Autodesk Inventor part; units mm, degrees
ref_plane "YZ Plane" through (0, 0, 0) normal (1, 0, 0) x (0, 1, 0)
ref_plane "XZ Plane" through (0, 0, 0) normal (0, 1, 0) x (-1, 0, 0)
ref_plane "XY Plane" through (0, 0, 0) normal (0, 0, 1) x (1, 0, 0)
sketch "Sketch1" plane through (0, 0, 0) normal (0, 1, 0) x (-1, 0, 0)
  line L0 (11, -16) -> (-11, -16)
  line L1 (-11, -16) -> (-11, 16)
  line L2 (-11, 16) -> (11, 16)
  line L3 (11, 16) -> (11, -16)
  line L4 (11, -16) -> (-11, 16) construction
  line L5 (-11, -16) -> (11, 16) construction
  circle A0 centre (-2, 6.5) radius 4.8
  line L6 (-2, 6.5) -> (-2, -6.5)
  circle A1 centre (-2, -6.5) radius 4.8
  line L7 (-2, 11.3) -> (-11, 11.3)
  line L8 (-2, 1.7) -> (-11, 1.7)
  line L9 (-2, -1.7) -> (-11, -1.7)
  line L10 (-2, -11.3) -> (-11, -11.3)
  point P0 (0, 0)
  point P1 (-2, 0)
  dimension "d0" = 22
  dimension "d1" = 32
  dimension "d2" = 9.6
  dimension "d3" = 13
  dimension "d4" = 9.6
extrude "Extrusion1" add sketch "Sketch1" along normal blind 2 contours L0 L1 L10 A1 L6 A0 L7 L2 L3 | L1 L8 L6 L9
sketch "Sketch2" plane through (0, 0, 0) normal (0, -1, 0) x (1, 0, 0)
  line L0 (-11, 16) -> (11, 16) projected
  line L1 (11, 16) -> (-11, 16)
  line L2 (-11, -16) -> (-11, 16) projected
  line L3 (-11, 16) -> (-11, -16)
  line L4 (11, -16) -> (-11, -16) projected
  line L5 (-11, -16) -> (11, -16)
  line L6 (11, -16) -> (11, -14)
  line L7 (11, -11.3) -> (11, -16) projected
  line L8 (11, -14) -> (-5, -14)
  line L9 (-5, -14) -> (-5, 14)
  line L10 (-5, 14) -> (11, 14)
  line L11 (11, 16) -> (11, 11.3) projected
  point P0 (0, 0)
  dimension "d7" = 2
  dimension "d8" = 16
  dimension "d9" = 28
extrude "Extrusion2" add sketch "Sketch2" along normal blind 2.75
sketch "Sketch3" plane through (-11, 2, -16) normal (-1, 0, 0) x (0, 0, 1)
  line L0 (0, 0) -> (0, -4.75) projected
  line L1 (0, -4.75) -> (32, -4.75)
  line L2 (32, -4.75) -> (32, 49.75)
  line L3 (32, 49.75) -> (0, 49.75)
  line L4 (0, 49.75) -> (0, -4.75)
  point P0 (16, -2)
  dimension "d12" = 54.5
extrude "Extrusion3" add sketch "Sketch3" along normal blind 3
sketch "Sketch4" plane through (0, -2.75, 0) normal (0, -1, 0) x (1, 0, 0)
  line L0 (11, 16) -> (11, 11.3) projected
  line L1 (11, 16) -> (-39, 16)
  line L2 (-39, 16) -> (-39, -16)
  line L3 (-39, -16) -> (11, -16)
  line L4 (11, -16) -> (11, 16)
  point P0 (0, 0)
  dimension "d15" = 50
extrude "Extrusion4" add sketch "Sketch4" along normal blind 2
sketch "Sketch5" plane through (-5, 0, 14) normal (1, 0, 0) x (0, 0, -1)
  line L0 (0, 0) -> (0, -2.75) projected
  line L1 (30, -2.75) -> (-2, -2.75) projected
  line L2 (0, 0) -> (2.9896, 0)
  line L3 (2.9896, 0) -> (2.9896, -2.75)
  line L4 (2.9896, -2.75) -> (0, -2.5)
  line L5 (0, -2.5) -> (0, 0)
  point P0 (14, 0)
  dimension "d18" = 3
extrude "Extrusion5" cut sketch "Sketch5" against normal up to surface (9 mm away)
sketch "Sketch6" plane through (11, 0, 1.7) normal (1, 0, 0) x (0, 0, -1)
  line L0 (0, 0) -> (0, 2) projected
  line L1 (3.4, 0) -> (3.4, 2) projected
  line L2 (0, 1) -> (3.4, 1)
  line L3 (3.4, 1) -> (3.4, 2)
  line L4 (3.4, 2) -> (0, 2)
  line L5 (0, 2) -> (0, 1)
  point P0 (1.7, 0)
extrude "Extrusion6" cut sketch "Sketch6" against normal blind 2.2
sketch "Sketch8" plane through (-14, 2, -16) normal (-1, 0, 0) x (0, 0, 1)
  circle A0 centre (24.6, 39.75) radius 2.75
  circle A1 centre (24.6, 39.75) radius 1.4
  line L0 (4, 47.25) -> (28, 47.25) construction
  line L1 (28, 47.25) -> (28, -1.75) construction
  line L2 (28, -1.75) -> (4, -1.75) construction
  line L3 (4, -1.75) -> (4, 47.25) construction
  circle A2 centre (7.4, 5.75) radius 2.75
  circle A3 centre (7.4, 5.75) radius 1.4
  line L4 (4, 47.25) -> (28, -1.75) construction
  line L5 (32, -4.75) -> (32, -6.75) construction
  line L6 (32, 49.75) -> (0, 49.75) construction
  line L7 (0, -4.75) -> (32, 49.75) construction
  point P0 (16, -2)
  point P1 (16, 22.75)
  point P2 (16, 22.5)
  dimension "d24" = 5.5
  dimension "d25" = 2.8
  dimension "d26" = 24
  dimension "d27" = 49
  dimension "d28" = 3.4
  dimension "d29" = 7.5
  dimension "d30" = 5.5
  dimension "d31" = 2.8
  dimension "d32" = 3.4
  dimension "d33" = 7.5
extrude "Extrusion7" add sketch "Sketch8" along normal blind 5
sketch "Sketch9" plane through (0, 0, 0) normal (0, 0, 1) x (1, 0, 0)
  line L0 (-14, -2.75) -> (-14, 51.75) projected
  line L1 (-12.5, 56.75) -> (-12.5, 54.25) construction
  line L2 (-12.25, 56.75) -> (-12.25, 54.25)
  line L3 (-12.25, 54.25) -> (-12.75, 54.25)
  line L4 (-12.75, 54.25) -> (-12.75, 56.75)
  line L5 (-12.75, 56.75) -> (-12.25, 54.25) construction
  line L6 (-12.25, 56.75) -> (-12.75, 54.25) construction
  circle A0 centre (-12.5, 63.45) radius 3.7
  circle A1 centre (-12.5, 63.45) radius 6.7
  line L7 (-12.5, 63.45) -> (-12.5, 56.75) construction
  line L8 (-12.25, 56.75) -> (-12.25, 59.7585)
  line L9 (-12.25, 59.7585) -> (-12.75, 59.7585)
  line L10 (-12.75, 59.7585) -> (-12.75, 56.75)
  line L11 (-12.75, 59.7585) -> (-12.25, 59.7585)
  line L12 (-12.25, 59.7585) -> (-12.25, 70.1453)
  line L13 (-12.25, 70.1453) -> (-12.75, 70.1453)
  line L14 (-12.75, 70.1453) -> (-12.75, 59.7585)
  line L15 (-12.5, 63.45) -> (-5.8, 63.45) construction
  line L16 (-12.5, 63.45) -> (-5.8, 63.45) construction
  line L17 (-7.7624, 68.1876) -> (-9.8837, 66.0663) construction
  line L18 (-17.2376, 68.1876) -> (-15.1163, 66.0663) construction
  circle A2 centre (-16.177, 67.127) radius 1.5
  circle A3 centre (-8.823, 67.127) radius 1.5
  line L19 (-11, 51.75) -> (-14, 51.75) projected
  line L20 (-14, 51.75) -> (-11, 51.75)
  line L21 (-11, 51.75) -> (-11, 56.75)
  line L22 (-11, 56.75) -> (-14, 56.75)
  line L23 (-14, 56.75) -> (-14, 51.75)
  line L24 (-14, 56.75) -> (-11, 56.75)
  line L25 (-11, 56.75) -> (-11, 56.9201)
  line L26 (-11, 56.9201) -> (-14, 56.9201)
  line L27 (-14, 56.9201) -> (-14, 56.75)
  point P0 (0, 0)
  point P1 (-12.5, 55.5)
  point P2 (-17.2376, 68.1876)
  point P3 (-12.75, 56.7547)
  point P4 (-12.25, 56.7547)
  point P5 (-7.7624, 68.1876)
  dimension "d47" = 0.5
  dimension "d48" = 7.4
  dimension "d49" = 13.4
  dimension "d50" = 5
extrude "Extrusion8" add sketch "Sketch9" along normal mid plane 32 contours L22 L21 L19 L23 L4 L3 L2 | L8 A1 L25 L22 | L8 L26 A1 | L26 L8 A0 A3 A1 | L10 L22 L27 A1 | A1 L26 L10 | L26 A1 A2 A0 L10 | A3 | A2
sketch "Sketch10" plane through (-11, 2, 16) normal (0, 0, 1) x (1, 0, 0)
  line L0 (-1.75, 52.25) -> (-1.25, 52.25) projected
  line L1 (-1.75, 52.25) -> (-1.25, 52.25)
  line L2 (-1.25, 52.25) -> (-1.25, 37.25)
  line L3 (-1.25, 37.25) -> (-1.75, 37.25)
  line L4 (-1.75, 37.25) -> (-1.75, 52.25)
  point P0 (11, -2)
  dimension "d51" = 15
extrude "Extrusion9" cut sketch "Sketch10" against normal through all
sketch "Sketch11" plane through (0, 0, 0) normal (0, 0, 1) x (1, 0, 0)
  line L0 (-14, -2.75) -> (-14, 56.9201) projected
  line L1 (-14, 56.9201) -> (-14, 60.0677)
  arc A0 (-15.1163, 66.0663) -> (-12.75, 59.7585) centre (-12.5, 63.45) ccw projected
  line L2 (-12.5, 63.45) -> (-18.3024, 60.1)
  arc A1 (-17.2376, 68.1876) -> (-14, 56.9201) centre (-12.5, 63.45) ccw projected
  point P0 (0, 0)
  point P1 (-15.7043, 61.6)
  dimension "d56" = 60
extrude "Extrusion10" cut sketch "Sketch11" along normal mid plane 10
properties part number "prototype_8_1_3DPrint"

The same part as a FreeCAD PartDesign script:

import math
import FreeCAD as App
import Part
import Sketcher

V = App.Vector
Q = App.Units.Quantity

doc = App.newDocument("Part")
body = doc.addObject("PartDesign::Body", "Body")

# Sketch on XZ plane
sketch1 = body.newObject("Sketcher::SketchObject", "Sketch")
sketch1.AttachmentSupport = (doc.getObject("XZ_Plane"), [""])
sketch1.MapMode = "FlatFace"
sketch1.addGeometry([
    Part.LineSegment(V(11, -16, 0), V(-11, -16, 0)),  # 0
    Part.LineSegment(V(-11, -16, 0), V(-11, 16, 0)),  # 1
    Part.LineSegment(V(-11, 16, 0), V(11, 16, 0)),  # 2
    Part.LineSegment(V(11, 16, 0), V(11, 11.3, 0)),  # 3
    Part.LineSegment(V(11, 11.3, 0), V(2, 11.3, 0)),  # 4
    Part.ArcOfCircle(Part.Circle(V(2, 6.5, 0), V(0, 0, 1), 4.8), math.radians(90), math.radians(270)),  # 5
    Part.LineSegment(V(2, 1.7, 0), V(11, 1.7, 0)),  # 6
    Part.LineSegment(V(11, 1.7, 0), V(11, -1.7, 0)),  # 7
    Part.LineSegment(V(11, -1.7, 0), V(2, -1.7, 0)),  # 8
    Part.ArcOfCircle(Part.Circle(V(2, -6.5, 0), V(0, 0, 1), 4.8), math.radians(90), math.radians(270)),  # 9
    Part.LineSegment(V(2, -11.3, 0), V(11, -11.3, 0)),  # 10
    Part.LineSegment(V(11, -11.3, 0), V(11, -16, 0)),  # 11
], False)
sketch1.addConstraint([
    Sketcher.Constraint("Coincident", 0, 2, 1, 1),
    Sketcher.Constraint("Coincident", 1, 2, 2, 1),
    Sketcher.Constraint("Coincident", 2, 2, 3, 1),
    Sketcher.Constraint("Coincident", 3, 2, 4, 1),
    Sketcher.Constraint("Tangent", 4, 2, 5, 1),
    Sketcher.Constraint("Tangent", 5, 2, 6, 1),
    Sketcher.Constraint("Coincident", 6, 2, 7, 1),
    Sketcher.Constraint("Coincident", 7, 2, 8, 1),
    Sketcher.Constraint("Tangent", 8, 2, 9, 1),
    Sketcher.Constraint("Tangent", 9, 2, 10, 1),
    Sketcher.Constraint("Coincident", 10, 2, 11, 1),
    Sketcher.Constraint("Coincident", 11, 2, 0, 1),
    Sketcher.Constraint("Horizontal", 0),
    Sketcher.Constraint("Vertical", 1),
    Sketcher.Constraint("Horizontal", 2),
    Sketcher.Constraint("Vertical", 3),
    Sketcher.Constraint("Horizontal", 4),
    Sketcher.Constraint("Horizontal", 6),
    Sketcher.Constraint("Vertical", 7),
    Sketcher.Constraint("Horizontal", 8),
    Sketcher.Constraint("Horizontal", 10),
    Sketcher.Constraint("Vertical", 11),
    Sketcher.Constraint("Equal", 5, 9),
    Sketcher.Constraint("Symmetric", 0, 2, 2, 2, -1, 1),
    Sketcher.Constraint("Symmetric", 5, 3, 9, 3, -1),
    Sketcher.Constraint("Vertical", 3, 2, 6, 2),
    Sketcher.Constraint("Vertical", 7, 2, 10, 2),
    Sketcher.Constraint("Radius", 5, 4.8),
    Sketcher.Constraint("DistanceX", 0, 2, 0, 1, 22.0),
    Sketcher.Constraint("DistanceY", 1, 1, 1, 2, 32.0),
    Sketcher.Constraint("DistanceY", 9, 3, 5, 3, 13.0),
    Sketcher.Constraint("DistanceX", 0, 2, 9, 3, 13.0),
])
pad1 = body.newObject("PartDesign::Pad", "Pad")
pad1.Profile = sketch1
pad1.Length = 2
pad1.Reversed = True

# Sketch on XZ plane
sketch2 = body.newObject("Sketcher::SketchObject", "Sketch001")
sketch2.AttachmentSupport = (doc.getObject("XZ_Plane"), [""])
sketch2.MapMode = "FlatFace"
sketch2.addGeometry([
    Part.LineSegment(V(11, 16, 0), V(-11, 16, 0)),  # 0
    Part.LineSegment(V(-11, 16, 0), V(-11, -16, 0)),  # 1
    Part.LineSegment(V(-11, -16, 0), V(11, -16, 0)),  # 2
    Part.LineSegment(V(11, -16, 0), V(11, -14, 0)),  # 3
    Part.LineSegment(V(11, -14, 0), V(-5, -14, 0)),  # 4
    Part.LineSegment(V(-5, -14, 0), V(-5, 14, 0)),  # 5
    Part.LineSegment(V(-5, 14, 0), V(11, 14, 0)),  # 6
    Part.LineSegment(V(11, 14, 0), V(11, 16, 0)),  # 7
], False)
sketch2.addConstraint([
    Sketcher.Constraint("Coincident", 0, 2, 1, 1),
    Sketcher.Constraint("Coincident", 1, 2, 2, 1),
    Sketcher.Constraint("Coincident", 2, 2, 3, 1),
    Sketcher.Constraint("Coincident", 3, 2, 4, 1),
    Sketcher.Constraint("Coincident", 4, 2, 5, 1),
    Sketcher.Constraint("Coincident", 5, 2, 6, 1),
    Sketcher.Constraint("Coincident", 6, 2, 7, 1),
    Sketcher.Constraint("Coincident", 7, 2, 0, 1),
    Sketcher.Constraint("Horizontal", 0),
    Sketcher.Constraint("Vertical", 1),
    Sketcher.Constraint("Horizontal", 2),
    Sketcher.Constraint("Vertical", 3),
    Sketcher.Constraint("Horizontal", 4),
    Sketcher.Constraint("Vertical", 5),
    Sketcher.Constraint("Horizontal", 6),
    Sketcher.Constraint("Vertical", 7),
    Sketcher.Constraint("Symmetric", 0, 2, 2, 2, -1, 1),
    Sketcher.Constraint("Symmetric", 3, 2, 6, 2, -1),
    Sketcher.Constraint("DistanceX", 4, 2, 4, 1, 16.0),
    Sketcher.Constraint("DistanceY", 3, 1, 3, 2, 2.0),
    Sketcher.Constraint("DistanceY", 5, 1, 5, 2, 28.0),
    Sketcher.Constraint("DistanceX", 0, 2, 0, 1, 22.0),
])
pad2 = body.newObject("PartDesign::Pad", "Pad001")
pad2.Profile = sketch2
pad2.Length = 2.75

# Sketch on YZ plane
sketch3 = body.newObject("Sketcher::SketchObject", "Sketch002")
sketch3.AttachmentSupport = (doc.getObject("YZ_Plane"), [""])
sketch3.MapMode = "FlatFace"
sketch3.AttachmentOffset = App.Placement(V(0, 0, -11), App.Rotation())
sketch3.addGeometry([
    Part.LineSegment(V(52, -16, 0), V(-3, -16, 0)),
    Part.LineSegment(V(-3, -16, 0), V(-3, 16, 0)),
    Part.LineSegment(V(-3, 16, 0), V(52, 16, 0)),
    Part.LineSegment(V(52, 16, 0), V(52, -16, 0)),
], False)
sketch3.addConstraint([
    Sketcher.Constraint("Coincident", 0, 2, 1, 1),
    Sketcher.Constraint("Coincident", 1, 2, 2, 1),
    Sketcher.Constraint("Coincident", 2, 2, 3, 1),
    Sketcher.Constraint("Coincident", 3, 2, 0, 1),
    Sketcher.Constraint("Horizontal", 0),
    Sketcher.Constraint("Vertical", 1),
    Sketcher.Constraint("Horizontal", 2),
    Sketcher.Constraint("Vertical", 3),
    Sketcher.Constraint("DistanceX", 0, 2, 0, 1, 54.5),
    Sketcher.Constraint("DistanceY", 1, 1, 1, 2, 32.0),
    Sketcher.Constraint("DistanceY", 0, 2, -1, 1, 16.0),
    Sketcher.Constraint("DistanceX", 0, 2, -1, 1, 2.75),
])
pad3 = body.newObject("PartDesign::Pad", "Pad002")
pad3.Profile = sketch3
pad3.Length = 3
pad3.Reversed = True

# Sketch on XZ plane
sketch4 = body.newObject("Sketcher::SketchObject", "Sketch003")
sketch4.AttachmentSupport = (doc.getObject("XZ_Plane"), [""])
sketch4.MapMode = "FlatFace"
sketch4.AttachmentOffset = App.Placement(V(0, 0, 2.75), App.Rotation())
sketch4.addGeometry([
    Part.LineSegment(V(11, -16, 0), V(11, 16, 0)),
    Part.LineSegment(V(11, 16, 0), V(-39, 16, 0)),
    Part.LineSegment(V(-39, 16, 0), V(-39, -16, 0)),
    Part.LineSegment(V(-39, -16, 0), V(11, -16, 0)),
], False)
sketch4.addConstraint([
    Sketcher.Constraint("Coincident", 0, 2, 1, 1),
    Sketcher.Constraint("Coincident", 1, 2, 2, 1),
    Sketcher.Constraint("Coincident", 2, 2, 3, 1),
    Sketcher.Constraint("Coincident", 3, 2, 0, 1),
    Sketcher.Constraint("Vertical", 0),
    Sketcher.Constraint("Horizontal", 1),
    Sketcher.Constraint("Vertical", 2),
    Sketcher.Constraint("Horizontal", 3),
    Sketcher.Constraint("DistanceX", 1, 2, 1, 1, 50.0),
    Sketcher.Constraint("DistanceY", 0, 1, 0, 2, 32.0),
    Sketcher.Constraint("DistanceX", -1, 1, 0, 2, 11.0),
    Sketcher.Constraint("DistanceY", -1, 1, 0, 2, 16.0),
])
pad4 = body.newObject("PartDesign::Pad", "Pad003")
pad4.Profile = sketch4
pad4.Length = 2

# Sketch on YZ plane
sketch5 = body.newObject("Sketcher::SketchObject", "Sketch004")
sketch5.AttachmentSupport = (doc.getObject("YZ_Plane"), [""])
sketch5.MapMode = "FlatFace"
sketch5.AttachmentOffset = App.Placement(V(0, 0, -5), App.Rotation())
sketch5.addGeometry([
    Part.LineSegment(V(0, 11, 0), V(0, 14, 0)),
    Part.LineSegment(V(0, 14, 0), V(-2.8, 14, 0)),
    Part.LineSegment(V(-2.8, 14, 0), V(-2.8, 11, 0)),
    Part.LineSegment(V(-2.8, 11, 0), V(0, 11, 0)),
], False)
sketch5.addConstraint([
    Sketcher.Constraint("Coincident", 0, 2, 1, 1),
    Sketcher.Constraint("Coincident", 1, 2, 2, 1),
    Sketcher.Constraint("Coincident", 2, 2, 3, 1),
    Sketcher.Constraint("Coincident", 3, 2, 0, 1),
    Sketcher.Constraint("Vertical", 0),
    Sketcher.Constraint("Horizontal", 1),
    Sketcher.Constraint("Vertical", 2),
    Sketcher.Constraint("Horizontal", 3),
    Sketcher.Constraint("PointOnObject", 0, 2, -2),
    Sketcher.Constraint("DistanceY", -1, 1, 0, 2, 14.0),
    Sketcher.Constraint("DistanceX", 1, 2, 1, 1, 2.75),
    Sketcher.Constraint("DistanceY", 0, 1, 0, 2, 2.9896),
])
pocket1 = body.newObject("PartDesign::Pocket", "Pocket")
pocket1.Profile = sketch5
pocket1.Length = 9

# Sketch on YZ plane
sketch6 = body.newObject("Sketcher::SketchObject", "Sketch005")
sketch6.AttachmentSupport = (doc.getObject("YZ_Plane"), [""])
sketch6.MapMode = "FlatFace"
sketch6.AttachmentOffset = App.Placement(V(0, 0, 11), App.Rotation())
sketch6.addGeometry([
    Part.LineSegment(V(2, 1.7, 0), V(1, 1.7, 0)),
    Part.LineSegment(V(1, 1.7, 0), V(1, -1.7, 0)),
    Part.LineSegment(V(1, -1.7, 0), V(2, -1.7, 0)),
    Part.LineSegment(V(2, -1.7, 0), V(2, 1.7, 0)),
], False)
sketch6.addConstraint([
    Sketcher.Constraint("Coincident", 0, 2, 1, 1),
    Sketcher.Constraint("Coincident", 1, 2, 2, 1),
    Sketcher.Constraint("Coincident", 2, 2, 3, 1),
    Sketcher.Constraint("Coincident", 3, 2, 0, 1),
    Sketcher.Constraint("Horizontal", 0),
    Sketcher.Constraint("Vertical", 1),
    Sketcher.Constraint("Horizontal", 2),
    Sketcher.Constraint("Vertical", 3),
    Sketcher.Constraint("DistanceX", 0, 2, 0, 1, 1.0),
    Sketcher.Constraint("DistanceY", 1, 2, 1, 1, 3.4),
    Sketcher.Constraint("DistanceX", -1, 1, 0, 2, 1.0),
    Sketcher.Constraint("DistanceY", -1, 1, 0, 2, 1.7),
])
pocket2 = body.newObject("PartDesign::Pocket", "Pocket001")
pocket2.Profile = sketch6
pocket2.Length = 2.2

# Sketch on YZ plane
sketch7 = body.newObject("Sketcher::SketchObject", "Sketch006")
sketch7.AttachmentSupport = (doc.getObject("YZ_Plane"), [""])
sketch7.MapMode = "FlatFace"
sketch7.AttachmentOffset = App.Placement(V(0, 0, -14), App.Rotation())
sketch7.addGeometry([
    Part.Circle(V(41.8, 8.6, 0), V(0, 0, 1), 2.8),
    Part.Circle(V(41.8, 8.6, 0), V(0, 0, 1), 1.4),
    Part.Circle(V(7.8, -8.6, 0), V(0, 0, 1), 2.8),
    Part.Circle(V(7.8, -8.6, 0), V(0, 0, 1), 1.4),
], False)
sketch7.addConstraint([
    Sketcher.Constraint("Coincident", 1, 3, 0, 3),
    Sketcher.Constraint("Coincident", 3, 3, 2, 3),
    Sketcher.Constraint("Equal", 0, 2),
    Sketcher.Constraint("Equal", 1, 3),
    Sketcher.Constraint("Diameter", 0, 5.5),
    Sketcher.Constraint("Diameter", 1, 2.8),
    Sketcher.Constraint("DistanceX", 2, 3, 0, 3, 34.0),
    Sketcher.Constraint("DistanceY", -1, 1, 0, 3, 8.6),
    Sketcher.Constraint("DistanceY", 2, 3, -1, 1, 8.6),
    Sketcher.Constraint("DistanceX", -1, 1, 0, 3, 41.75),
])
pad5 = body.newObject("PartDesign::Pad", "Pad004")
pad5.Profile = sketch7
pad5.Length = 5
pad5.Reversed = True

# Sketch on XY plane
sketch8 = body.newObject("Sketcher::SketchObject", "Sketch007")
sketch8.AttachmentSupport = (doc.getObject("XY_Plane"), [""])
sketch8.MapMode = "FlatFace"
sketch8.addGeometry([
    Part.LineSegment(V(-11, 51.8, 0), V(-11, 56.9, 0)),  # 0
    Part.ArcOfCircle(Part.Circle(V(-12.5, 63.5, 0), V(0, 0, 1), 6.7), math.radians(-77), math.radians(45)),  # 1
    Part.ArcOfCircle(Part.Circle(V(-8.8, 67.1, 0), V(0, 0, 1), 1.5), math.radians(45), math.radians(225)),  # 2
    Part.ArcOfCircle(Part.Circle(V(-12.5, 63.5, 0), V(0, 0, 1), 3.7), math.radians(-86), math.radians(45)),  # 3
    Part.LineSegment(V(-12.2, 59.8, 0), V(-12.2, 54.2, 0)),  # 4
    Part.LineSegment(V(-12.2, 54.2, 0), V(-12.8, 54.2, 0)),  # 5
    Part.LineSegment(V(-12.8, 54.2, 0), V(-12.8, 59.8, 0)),  # 6
    Part.ArcOfCircle(Part.Circle(V(-12.5, 63.5, 0), V(0, 0, 1), 3.7), math.radians(135), math.radians(266)),  # 7
    Part.ArcOfCircle(Part.Circle(V(-16.2, 67.1, 0), V(0, 0, 1), 1.5), math.radians(-45), math.radians(135)),  # 8
    Part.ArcOfCircle(Part.Circle(V(-12.5, 63.5, 0), V(0, 0, 1), 6.7), math.radians(135), math.radians(257)),  # 9
    Part.LineSegment(V(-14, 56.9, 0), V(-14, 51.8, 0)),  # 10
    Part.LineSegment(V(-14, 51.8, 0), V(-11, 51.8, 0)),  # 11
], False)
sketch8.addConstraint([
    Sketcher.Constraint("Coincident", 0, 2, 1, 1),
    Sketcher.Constraint("Tangent", 1, 2, 2, 1),
    Sketcher.Constraint("Tangent", 2, 2, 3, 2),
    Sketcher.Constraint("Coincident", 3, 1, 4, 1),
    Sketcher.Constraint("Coincident", 4, 2, 5, 1),
    Sketcher.Constraint("Coincident", 5, 2, 6, 1),
    Sketcher.Constraint("Coincident", 6, 2, 7, 2),
    Sketcher.Constraint("Tangent", 7, 1, 8, 1),
    Sketcher.Constraint("Tangent", 8, 2, 9, 1),
    Sketcher.Constraint("Coincident", 9, 2, 10, 1),
    Sketcher.Constraint("Coincident", 10, 2, 11, 1),
    Sketcher.Constraint("Coincident", 11, 2, 0, 1),
    Sketcher.Constraint("Vertical", 0),
    Sketcher.Constraint("Vertical", 4),
    Sketcher.Constraint("Horizontal", 5),
    Sketcher.Constraint("Vertical", 6),
    Sketcher.Constraint("Vertical", 10),
    Sketcher.Constraint("Horizontal", 11),
    Sketcher.Constraint("Coincident", 3, 3, 1, 3),
    Sketcher.Constraint("Coincident", 7, 3, 1, 3),
    Sketcher.Constraint("Coincident", 9, 3, 1, 3),
    Sketcher.Constraint("Equal", 3, 7),
    Sketcher.Constraint("Equal", 2, 8),
    Sketcher.Constraint("Horizontal", 2, 3, 8, 3),
    Sketcher.Constraint("Horizontal", 3, 1, 6, 2),
    Sketcher.Constraint("Horizontal", 0, 2, 9, 2),
    Sketcher.Constraint("Radius", 1, 6.7),
    Sketcher.Constraint("Radius", 3, 3.7),
    Sketcher.Constraint("DistanceX", 5, 2, 5, 1, 0.5),
    Sketcher.Constraint("DistanceX", 11, 1, 11, 2, 3.0),
    Sketcher.Constraint("DistanceX", 0, 2, -1, 1, 11.0),
    Sketcher.Constraint("DistanceY", 0, 1, 0, 2, 5.17),
    Sketcher.Constraint("DistanceY", 4, 2, 1, 3, 9.2),
    Sketcher.Constraint("DistanceY", -1, 1, 1, 3, 63.45),
    Sketcher.Constraint("DistanceX", 2, 3, -1, 1, 8.823),
])
pad6 = body.newObject("PartDesign::Pad", "Pad005")
pad6.Profile = sketch8
pad6.Length = 32
pad6.Midplane = True

# Sketch on XY plane
sketch9 = body.newObject("Sketcher::SketchObject", "Sketch008")
sketch9.AttachmentSupport = (doc.getObject("XY_Plane"), [""])
sketch9.MapMode = "FlatFace"
sketch9.AttachmentOffset = App.Placement(V(0, 0, 16), App.Rotation())
sketch9.addGeometry([
    Part.LineSegment(V(-12.2, 54.2, 0), V(-12.8, 54.2, 0)),
    Part.LineSegment(V(-12.8, 54.2, 0), V(-12.8, 39.2, 0)),
    Part.LineSegment(V(-12.8, 39.2, 0), V(-12.2, 39.2, 0)),
    Part.LineSegment(V(-12.2, 39.2, 0), V(-12.2, 54.2, 0)),
], False)
sketch9.addConstraint([
    Sketcher.Constraint("Coincident", 0, 2, 1, 1),
    Sketcher.Constraint("Coincident", 1, 2, 2, 1),
    Sketcher.Constraint("Coincident", 2, 2, 3, 1),
    Sketcher.Constraint("Coincident", 3, 2, 0, 1),
    Sketcher.Constraint("Horizontal", 0),
    Sketcher.Constraint("Vertical", 1),
    Sketcher.Constraint("Horizontal", 2),
    Sketcher.Constraint("Vertical", 3),
    Sketcher.Constraint("DistanceY", 1, 2, 1, 1, 15.0),
    Sketcher.Constraint("DistanceX", 0, 2, 0, 1, 0.5),
    Sketcher.Constraint("DistanceX", 0, 2, -1, 1, 12.75),
    Sketcher.Constraint("DistanceY", -1, 1, 0, 2, 54.25),
])
pocket3 = body.newObject("PartDesign::Pocket", "Pocket002")
pocket3.Profile = sketch9
pocket3.Type = "ThroughAll"

# Sketch on XY plane
sketch10 = body.newObject("Sketcher::SketchObject", "Sketch009")
sketch10.AttachmentSupport = (doc.getObject("XY_Plane"), [""])
sketch10.MapMode = "FlatFace"
sketch10.addGeometry([
    Part.ArcOfCircle(Part.Circle(V(-12.5, 63.5, 0), V(0, 0, 1), 6.7), math.radians(-150), math.radians(-103)),
    Part.LineSegment(V(-14, 56.9, 0), V(-14, 60.1, 0)),
    Part.ArcOfCircle(Part.Circle(V(-12.5, 63.5, 0), V(0, 0, 1), 3.7), math.radians(-150), math.radians(-114)),
    Part.LineSegment(V(-15.7, 61.6, 0), V(-18.3, 60.1, 0)),
], False)
sketch10.addConstraint([
    Sketcher.Constraint("Coincident", 0, 2, 1, 1),
    Sketcher.Constraint("Coincident", 1, 2, 2, 2),
    Sketcher.Constraint("Coincident", 2, 1, 3, 1),
    Sketcher.Constraint("Coincident", 3, 2, 0, 1),
    Sketcher.Constraint("Vertical", 1),
    Sketcher.Constraint("Coincident", 2, 3, 0, 3),
    Sketcher.Constraint("Radius", 0, 6.7),
    Sketcher.Constraint("Radius", 2, 3.7),
    Sketcher.Constraint("Angle", 3, Q("-150.0001 deg")),
    Sketcher.Constraint("DistanceX", 0, 2, -1, 1, 14.0),
    Sketcher.Constraint("DistanceX", 0, 3, -1, 1, 12.5),
    Sketcher.Constraint("DistanceY", -1, 1, 2, 1, 61.6),
    Sketcher.Constraint("DistanceY", -1, 1, 0, 3, 63.45),
])
pocket4 = body.newObject("PartDesign::Pocket", "Pocket003")
pocket4.Profile = sketch10
pocket4.Length = 10
pocket4.Midplane = True

doc.recompute()
